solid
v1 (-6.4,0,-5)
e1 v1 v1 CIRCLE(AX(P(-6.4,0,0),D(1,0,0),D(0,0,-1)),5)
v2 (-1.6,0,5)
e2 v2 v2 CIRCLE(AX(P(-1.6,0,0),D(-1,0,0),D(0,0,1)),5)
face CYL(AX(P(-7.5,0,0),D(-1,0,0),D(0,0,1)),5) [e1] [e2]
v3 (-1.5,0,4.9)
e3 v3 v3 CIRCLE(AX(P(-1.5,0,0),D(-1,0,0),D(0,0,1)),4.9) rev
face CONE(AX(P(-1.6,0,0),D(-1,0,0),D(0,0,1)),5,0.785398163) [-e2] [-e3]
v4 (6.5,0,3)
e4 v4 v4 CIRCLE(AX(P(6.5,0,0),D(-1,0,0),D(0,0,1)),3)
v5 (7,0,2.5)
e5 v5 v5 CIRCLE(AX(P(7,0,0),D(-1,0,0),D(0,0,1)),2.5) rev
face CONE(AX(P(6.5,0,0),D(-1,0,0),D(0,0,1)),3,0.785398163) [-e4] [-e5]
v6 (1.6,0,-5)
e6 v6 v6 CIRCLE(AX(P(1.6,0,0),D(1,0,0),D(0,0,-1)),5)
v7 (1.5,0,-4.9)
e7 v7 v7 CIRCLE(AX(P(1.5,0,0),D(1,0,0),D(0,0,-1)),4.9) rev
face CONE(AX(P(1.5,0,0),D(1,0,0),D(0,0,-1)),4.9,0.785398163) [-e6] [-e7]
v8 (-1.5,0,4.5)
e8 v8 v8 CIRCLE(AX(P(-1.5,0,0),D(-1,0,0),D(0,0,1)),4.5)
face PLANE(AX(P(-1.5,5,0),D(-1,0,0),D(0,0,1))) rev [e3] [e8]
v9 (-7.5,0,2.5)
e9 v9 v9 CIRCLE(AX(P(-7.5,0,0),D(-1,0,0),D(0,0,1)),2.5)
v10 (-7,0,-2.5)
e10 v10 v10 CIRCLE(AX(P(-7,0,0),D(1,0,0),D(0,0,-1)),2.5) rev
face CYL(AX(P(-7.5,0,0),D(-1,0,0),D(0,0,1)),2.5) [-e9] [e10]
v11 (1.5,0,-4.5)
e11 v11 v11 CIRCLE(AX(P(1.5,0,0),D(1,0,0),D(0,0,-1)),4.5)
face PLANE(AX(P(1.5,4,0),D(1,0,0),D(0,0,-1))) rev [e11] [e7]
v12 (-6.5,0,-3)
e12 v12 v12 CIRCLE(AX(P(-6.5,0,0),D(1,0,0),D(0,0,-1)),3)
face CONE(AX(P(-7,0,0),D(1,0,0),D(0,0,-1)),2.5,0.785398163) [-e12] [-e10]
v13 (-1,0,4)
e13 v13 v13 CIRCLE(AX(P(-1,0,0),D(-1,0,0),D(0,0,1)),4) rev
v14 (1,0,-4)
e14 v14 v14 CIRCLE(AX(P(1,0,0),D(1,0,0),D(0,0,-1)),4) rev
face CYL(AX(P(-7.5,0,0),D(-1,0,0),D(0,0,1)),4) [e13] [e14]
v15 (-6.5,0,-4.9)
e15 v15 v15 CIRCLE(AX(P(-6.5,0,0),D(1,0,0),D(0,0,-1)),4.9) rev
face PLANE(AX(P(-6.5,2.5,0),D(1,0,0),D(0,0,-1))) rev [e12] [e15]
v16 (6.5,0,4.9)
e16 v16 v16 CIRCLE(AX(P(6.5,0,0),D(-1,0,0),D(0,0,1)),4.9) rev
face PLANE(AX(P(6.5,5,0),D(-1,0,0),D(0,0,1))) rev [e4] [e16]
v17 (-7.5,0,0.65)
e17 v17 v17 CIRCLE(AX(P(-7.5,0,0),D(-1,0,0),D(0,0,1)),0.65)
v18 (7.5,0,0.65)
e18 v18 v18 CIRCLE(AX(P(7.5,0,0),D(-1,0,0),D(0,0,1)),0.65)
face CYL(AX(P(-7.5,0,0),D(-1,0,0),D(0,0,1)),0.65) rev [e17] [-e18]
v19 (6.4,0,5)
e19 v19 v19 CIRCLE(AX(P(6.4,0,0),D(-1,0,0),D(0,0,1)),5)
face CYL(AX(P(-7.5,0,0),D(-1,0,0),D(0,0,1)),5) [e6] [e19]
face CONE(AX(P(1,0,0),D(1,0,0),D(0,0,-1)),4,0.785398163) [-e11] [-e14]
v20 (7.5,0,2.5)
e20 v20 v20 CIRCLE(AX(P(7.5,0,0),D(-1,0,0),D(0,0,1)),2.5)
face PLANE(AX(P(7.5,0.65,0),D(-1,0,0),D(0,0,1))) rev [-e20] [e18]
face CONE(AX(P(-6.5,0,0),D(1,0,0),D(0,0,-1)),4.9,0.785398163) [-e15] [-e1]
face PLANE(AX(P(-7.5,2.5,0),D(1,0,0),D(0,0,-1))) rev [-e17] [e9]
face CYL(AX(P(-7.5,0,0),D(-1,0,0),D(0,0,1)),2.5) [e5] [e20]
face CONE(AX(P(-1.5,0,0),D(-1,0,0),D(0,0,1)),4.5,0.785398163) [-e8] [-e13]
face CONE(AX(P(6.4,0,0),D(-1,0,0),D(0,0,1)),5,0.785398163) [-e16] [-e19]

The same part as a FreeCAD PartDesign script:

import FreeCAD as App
import Part
import Sketcher
from FreeCAD import Vector


def edges_at(feature, points):
    """Names of the edges that pass closest to the given points."""
    edges = feature.Shape.Edges
    near = lambda p: min(range(len(edges)), key=lambda i: edges[i].distToShape(Part.Vertex(*p))[0])
    return sorted({f"Edge{near(p) + 1}" for p in points})

doc = App.newDocument("Part")
body = doc.addObject("PartDesign::Body", "Body")

# Sketch on XY plane
sketch1 = body.newObject("Sketcher::SketchObject", "Sketch")
sketch1.AttachmentSupport = (doc.getObject("XY_Plane"), [""])
sketch1.MapMode = "FlatFace"
sketch1.addGeometry([
    Part.LineSegment(Vector(-6.5, 2.5, 0), Vector(-7.5, 2.5, 0)),  # 0
    Part.LineSegment(Vector(-7.5, 2.5, 0), Vector(-7.5, 0.7, 0)),  # 1
    Part.LineSegment(Vector(-7.5, 0.7, 0), Vector(7.5, 0.7, 0)),  # 2
    Part.LineSegment(Vector(7.5, 0.7, 0), Vector(7.5, 2.5, 0)),  # 3
    Part.LineSegment(Vector(7.5, 2.5, 0), Vector(6.5, 2.5, 0)),  # 4
    Part.LineSegment(Vector(6.5, 2.5, 0), Vector(6.5, 5, 0)),  # 5
    Part.LineSegment(Vector(6.5, 5, 0), Vector(1.5, 5, 0)),  # 6
    Part.LineSegment(Vector(1.5, 5, 0), Vector(1.5, 4, 0)),  # 7
    Part.LineSegment(Vector(1.5, 4, 0), Vector(-1.5, 4, 0)),  # 8
    Part.LineSegment(Vector(-1.5, 4, 0), Vector(-1.5, 5, 0)),  # 9
    Part.LineSegment(Vector(-1.5, 5, 0), Vector(-6.5, 5, 0)),  # 10
    Part.LineSegment(Vector(-6.5, 5, 0), Vector(-6.5, 2.5, 0)),  # 11
], False)
sketch1.addConstraint([
    Sketcher.Constraint("Coincident", 0, 2, 1, 1),
    Sketcher.Constraint("Coincident", 1, 2, 2, 1),
    Sketcher.Constraint("Coincident", 2, 2, 3, 1),
    Sketcher.Constraint("Coincident", 3, 2, 4, 1),
    Sketcher.Constraint("Coincident", 4, 2, 5, 1),
    Sketcher.Constraint("Coincident", 5, 2, 6, 1),
    Sketcher.Constraint("Coincident", 6, 2, 7, 1),
    Sketcher.Constraint("Coincident", 7, 2, 8, 1),
    Sketcher.Constraint("Coincident", 8, 2, 9, 1),
    Sketcher.Constraint("Coincident", 9, 2, 10, 1),
    Sketcher.Constraint("Coincident", 10, 2, 11, 1),
    Sketcher.Constraint("Coincident", 11, 2, 0, 1),
    Sketcher.Constraint("Horizontal", 0),
    Sketcher.Constraint("Vertical", 1),
    Sketcher.Constraint("Horizontal", 2),
    Sketcher.Constraint("Vertical", 3),
    Sketcher.Constraint("Horizontal", 4),
    Sketcher.Constraint("Vertical", 5),
    Sketcher.Constraint("Horizontal", 6),
    Sketcher.Constraint("Vertical", 7),
    Sketcher.Constraint("Horizontal", 8),
    Sketcher.Constraint("Vertical", 9),
    Sketcher.Constraint("Horizontal", 10),
    Sketcher.Constraint("Vertical", 11),
    Sketcher.Constraint("Symmetric", 0, 2, 3, 2, -2),
    Sketcher.Constraint("Symmetric", 6, 2, 9, 2, -2),
    Sketcher.Constraint("Equal", 0, 4),
    Sketcher.Constraint("Equal", 4, 7),
    Sketcher.Constraint("DistanceX", 0, 2, 0, 1, 1.0),
    Sketcher.Constraint("DistanceX", 2, 1, 2, 2, 15.0),
    Sketcher.Constraint("DistanceX", 6, 2, 6, 1, 5.0),
    Sketcher.Constraint("DistanceY", 5, 1, 5, 2, 2.5),
    Sketcher.Constraint("DistanceY", -1, 1, 5, 2, 5.0),
    Sketcher.Constraint("DistanceY", 1, 2, 1, 1, 1.85),
])
revolution = body.newObject("PartDesign::Revolution", "Revolution")
revolution.Profile = sketch1
revolution.ReferenceAxis = (sketch1, ["H_Axis"])
revolution.Angle = 360
doc.recompute()

chamfer = body.newObject("PartDesign::Chamfer", "Chamfer")
chamfer.Base = (revolution, edges_at(revolution, [
    (6.5, 0, -2.5),
    (1.5, 0, -4),
    (-1.5, 0, -4),
    (-6.5, 0, -2.5),
]))
chamfer.Size = 0.5
doc.recompute()

chamfer2 = body.newObject("PartDesign::Chamfer", "Chamfer001")
chamfer2.Base = (chamfer, edges_at(chamfer, [
    (6.5, 0, -5),
    (1.5, 0, -5),
    (-1.5, 0, -5),
    (-6.5, 0, -5),
]))
chamfer2.Size = 0.1

doc.recompute()
